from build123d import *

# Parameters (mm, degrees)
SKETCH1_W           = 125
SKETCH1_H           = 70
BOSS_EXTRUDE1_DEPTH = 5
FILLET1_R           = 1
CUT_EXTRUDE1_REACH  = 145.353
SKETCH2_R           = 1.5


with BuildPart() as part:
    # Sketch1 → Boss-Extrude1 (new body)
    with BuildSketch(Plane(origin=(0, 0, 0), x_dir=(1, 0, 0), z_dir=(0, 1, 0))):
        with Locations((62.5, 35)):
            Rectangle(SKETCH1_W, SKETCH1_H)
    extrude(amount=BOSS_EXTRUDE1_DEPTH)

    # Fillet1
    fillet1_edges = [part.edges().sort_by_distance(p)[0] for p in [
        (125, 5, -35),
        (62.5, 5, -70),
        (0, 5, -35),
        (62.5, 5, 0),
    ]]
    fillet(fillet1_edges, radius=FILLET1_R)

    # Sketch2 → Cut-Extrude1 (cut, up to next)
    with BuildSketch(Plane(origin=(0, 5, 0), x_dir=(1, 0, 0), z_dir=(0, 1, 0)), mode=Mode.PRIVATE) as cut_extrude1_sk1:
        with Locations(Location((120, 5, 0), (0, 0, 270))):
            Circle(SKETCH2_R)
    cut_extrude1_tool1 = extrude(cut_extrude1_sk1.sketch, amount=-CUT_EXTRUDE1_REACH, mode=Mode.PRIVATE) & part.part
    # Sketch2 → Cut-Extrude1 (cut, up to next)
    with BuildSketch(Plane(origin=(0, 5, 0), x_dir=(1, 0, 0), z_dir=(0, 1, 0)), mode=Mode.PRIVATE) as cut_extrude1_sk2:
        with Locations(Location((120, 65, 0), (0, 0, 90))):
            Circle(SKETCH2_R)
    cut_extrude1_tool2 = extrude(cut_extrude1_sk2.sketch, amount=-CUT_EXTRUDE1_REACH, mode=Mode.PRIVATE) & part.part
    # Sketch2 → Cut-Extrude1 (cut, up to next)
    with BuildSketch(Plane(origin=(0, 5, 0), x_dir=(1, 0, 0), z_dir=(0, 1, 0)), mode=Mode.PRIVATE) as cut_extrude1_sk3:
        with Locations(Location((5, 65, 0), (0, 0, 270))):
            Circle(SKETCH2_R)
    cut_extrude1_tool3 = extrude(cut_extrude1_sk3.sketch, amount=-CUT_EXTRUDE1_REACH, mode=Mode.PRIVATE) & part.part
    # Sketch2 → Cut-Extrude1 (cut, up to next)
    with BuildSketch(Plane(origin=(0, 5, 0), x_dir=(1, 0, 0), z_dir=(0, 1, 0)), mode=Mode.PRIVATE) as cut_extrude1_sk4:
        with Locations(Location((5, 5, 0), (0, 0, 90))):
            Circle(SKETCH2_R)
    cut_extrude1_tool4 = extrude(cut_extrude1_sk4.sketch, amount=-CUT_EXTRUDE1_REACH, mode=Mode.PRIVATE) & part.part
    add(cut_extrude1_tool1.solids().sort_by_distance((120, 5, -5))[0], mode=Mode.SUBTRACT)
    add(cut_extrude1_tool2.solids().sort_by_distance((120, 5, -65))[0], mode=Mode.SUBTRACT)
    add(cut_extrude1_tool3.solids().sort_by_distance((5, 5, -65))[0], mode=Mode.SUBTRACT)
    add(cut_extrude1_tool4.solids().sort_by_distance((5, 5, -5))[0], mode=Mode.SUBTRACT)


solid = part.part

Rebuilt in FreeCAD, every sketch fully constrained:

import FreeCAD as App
import Part
import Sketcher
Q = App.Units.Quantity


def edges_at(feature, points):
    """Names of the edges that pass closest to the given points."""
    edges = feature.Shape.Edges
    near = lambda p: min(range(len(edges)), key=lambda i: edges[i].distToShape(Part.Vertex(*p))[0])
    return sorted({f"Edge{near(p) + 1}" for p in points})


def add_polygon(sketch, points):
    """Adds a closed chain of lines whose ends are joined by coincident constraints."""
    first, n = sketch.GeometryCount, len(points)
    for a, b in zip(points, points[1:] + points[:1]):
        sketch.addGeometry(Part.LineSegment(App.Vector(*a, 0), App.Vector(*b, 0)), False)
    for i in range(n):
        sketch.addConstraint(Sketcher.Constraint("Coincident", first + i, 2, first + (i + 1) % n, 1))

doc = App.newDocument("Part")
body = doc.addObject("PartDesign::Body", "Body")

sketch1 = body.newObject("Sketcher::SketchObject", "Sketch")
sketch1.AttachmentSupport = (doc.getObject("XZ_Plane"), [""])
sketch1.MapMode = "FlatFace"
add_polygon(sketch1, [(0, -70), (0, 0), (125, 0), (125, -70)])
sketch1.addConstraint([
    Sketcher.Constraint("Vertical", 0),
    Sketcher.Constraint("Horizontal", 1),
    Sketcher.Constraint("Vertical", 2),
    Sketcher.Constraint("Horizontal", 3),
    Sketcher.Constraint("Coincident", 0, 2, -1, 1),
    Sketcher.Constraint("DistanceX", 1, 1, 1, 2, Q("125 mm")),
    Sketcher.Constraint("DistanceY", 0, 1, 0, 2, Q("70 mm")),
])
pad1 = body.newObject("PartDesign::Pad", "Pad")
pad1.Profile = sketch1
pad1.Length = 5
pad1.Reversed = True
doc.recompute()

fillet = body.newObject("PartDesign::Fillet", "Fillet")
fillet.Base = (pad1, edges_at(pad1, [
    (125, 5, -35),
    (62.5, 5, -70),
    (0, 5, -35),
    (62.5, 5, 0),
]))
fillet.Radius = 1

sketch2 = body.newObject("Sketcher::SketchObject", "Sketch001")
sketch2.AttachmentSupport = (doc.getObject("XZ_Plane"), [""])
sketch2.MapMode = "FlatFace"
sketch2.AttachmentOffset = App.Placement(App.Vector(0, 0, -5), App.Rotation())
sketch2.addGeometry(Part.Circle(App.Vector(120, -5, 0), App.Vector(0, 0, 1), 1.5), False)
sketch2.addConstraint([
    Sketcher.Constraint("Diameter", 0, Q("3 mm")),
    Sketcher.Constraint("DistanceX", -1, 1, 0, 3, Q("120 mm")),
    Sketcher.Constraint("DistanceY", 0, 3, -1, 1, Q("5 mm")),
])
pocket1 = body.newObject("PartDesign::Pocket", "Pocket")
pocket1.Profile = sketch2
pocket1.Type = "UpToFirst"
pocket1.Reversed = True

sketch3 = body.newObject("Sketcher::SketchObject", "Sketch002")
sketch3.AttachmentSupport = (doc.getObject("XZ_Plane"), [""])
sketch3.MapMode = "FlatFace"
sketch3.AttachmentOffset = App.Placement(App.Vector(0, 0, -5), App.Rotation())
sketch3.addGeometry(Part.Circle(App.Vector(120, -65, 0), App.Vector(0, 0, 1), 1.5), False)
sketch3.addConstraint([
    Sketcher.Constraint("Diameter", 0, Q("3 mm")),
    Sketcher.Constraint("DistanceX", -1, 1, 0, 3, Q("120 mm")),
    Sketcher.Constraint("DistanceY", 0, 3, -1, 1, Q("65 mm")),
])
pocket2 = body.newObject("PartDesign::Pocket", "Pocket001")
pocket2.Profile = sketch3
pocket2.Type = "UpToFirst"
pocket2.Reversed = True

sketch4 = body.newObject("Sketcher::SketchObject", "Sketch003")
sketch4.AttachmentSupport = (doc.getObject("XZ_Plane"), [""])
sketch4.MapMode = "FlatFace"
sketch4.AttachmentOffset = App.Placement(App.Vector(0, 0, -5), App.Rotation())
sketch4.addGeometry(Part.Circle(App.Vector(5, -65, 0), App.Vector(0, 0, 1), 1.5), False)
sketch4.addConstraint([
    Sketcher.Constraint("Diameter", 0, Q("3 mm")),
    Sketcher.Constraint("DistanceX", -1, 1, 0, 3, Q("5 mm")),
    Sketcher.Constraint("DistanceY", 0, 3, -1, 1, Q("65 mm")),
])
pocket3 = body.newObject("PartDesign::Pocket", "Pocket002")
pocket3.Profile = sketch4
pocket3.Type = "UpToFirst"
pocket3.Reversed = True

sketch5 = body.newObject("Sketcher::SketchObject", "Sketch004")
sketch5.AttachmentSupport = (doc.getObject("XZ_Plane"), [""])
sketch5.MapMode = "FlatFace"
sketch5.AttachmentOffset = App.Placement(App.Vector(0, 0, -5), App.Rotation())
sketch5.addGeometry(Part.Circle(App.Vector(5, -5, 0), App.Vector(0, 0, 1), 1.5), False)
sketch5.addConstraint([
    Sketcher.Constraint("Diameter", 0, Q("3 mm")),
    Sketcher.Constraint("DistanceX", -1, 1, 0, 3, Q("5 mm")),
    Sketcher.Constraint("DistanceY", 0, 3, -1, 1, Q("5 mm")),
])
pocket4 = body.newObject("PartDesign::Pocket", "Pocket003")
pocket4.Profile = sketch5
pocket4.Type = "UpToFirst"
pocket4.Reversed = True

doc.recompute()
